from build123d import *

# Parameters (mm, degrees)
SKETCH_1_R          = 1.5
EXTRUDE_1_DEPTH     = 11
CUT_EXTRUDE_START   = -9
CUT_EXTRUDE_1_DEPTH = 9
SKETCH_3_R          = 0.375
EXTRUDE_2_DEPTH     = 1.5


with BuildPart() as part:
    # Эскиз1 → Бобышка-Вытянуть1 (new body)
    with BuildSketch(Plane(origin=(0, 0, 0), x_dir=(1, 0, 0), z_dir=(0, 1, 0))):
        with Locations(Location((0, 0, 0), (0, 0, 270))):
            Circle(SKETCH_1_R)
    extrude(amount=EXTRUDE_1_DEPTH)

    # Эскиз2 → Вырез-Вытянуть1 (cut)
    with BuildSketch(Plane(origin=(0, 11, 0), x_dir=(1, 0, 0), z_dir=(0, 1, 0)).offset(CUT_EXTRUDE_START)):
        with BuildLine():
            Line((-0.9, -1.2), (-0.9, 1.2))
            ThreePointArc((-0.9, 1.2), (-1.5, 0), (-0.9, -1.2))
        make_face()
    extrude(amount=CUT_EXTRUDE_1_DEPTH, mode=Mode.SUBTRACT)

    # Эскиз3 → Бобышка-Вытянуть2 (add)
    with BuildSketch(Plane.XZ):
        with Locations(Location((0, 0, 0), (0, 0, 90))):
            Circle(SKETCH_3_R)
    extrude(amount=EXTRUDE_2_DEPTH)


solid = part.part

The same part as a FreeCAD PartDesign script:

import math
import FreeCAD as App
import Part
import Sketcher

V = App.Vector

doc = App.newDocument("Part")
body = doc.addObject("PartDesign::Body", "Body")

# Sketch on XZ plane
sketch1 = doc.addObject("Sketcher::SketchObject", "Sketch")
body.addObject(sketch1)
sketch1.AttachmentSupport = (doc.XZ_Plane, [""])
sketch1.MapMode = "FlatFace"
sketch1.addGeometry(Part.Circle(V(0, 0, 0), V(0, 0, 1), 1.5), False)
sketch1.addConstraint(Sketcher.Constraint("Coincident", 0, 3, -1, 1))
sketch1.addConstraint(Sketcher.Constraint("Diameter", 0, 3.0))
pad1 = doc.addObject("PartDesign::Pad", "Pad")
body.addObject(pad1)
pad1.Profile = sketch1
pad1.Length = 11
pad1.Reversed = True

# Sketch on XZ plane
sketch2 = doc.addObject("Sketcher::SketchObject", "Sketch001")
body.addObject(sketch2)
sketch2.AttachmentSupport = (doc.XZ_Plane, [""])
sketch2.MapMode = "FlatFace"
sketch2.AttachmentOffset = App.Placement(V(0, 0, -2), App.Rotation())
sketch2.addGeometry(Part.LineSegment(V(-0.9, 1.2, 0), V(-0.9, -1.2, 0)), False)
sketch2.addGeometry(Part.ArcOfCircle(Part.Circle(V(0, 0, 0), V(0, 0, 1), 1.5), math.radians(127), math.radians(233)), False)
sketch2.addConstraint(Sketcher.Constraint("Coincident", 0, 1, 1, 1))
sketch2.addConstraint(Sketcher.Constraint("Coincident", 1, 2, 0, 2))
sketch2.addConstraint(Sketcher.Constraint("Vertical", 0))
sketch2.addConstraint(Sketcher.Constraint("Coincident", 1, 3, -1, 1))
sketch2.addConstraint(Sketcher.Constraint("Radius", 1, 1.5))
sketch2.addConstraint(Sketcher.Constraint("DistanceY", 0, 2, 0, 1, 2.4))
pocket1 = doc.addObject("PartDesign::Pocket", "Pocket")
body.addObject(pocket1)
pocket1.Profile = sketch2
pocket1.Length = 9

# Sketch on XZ plane
sketch3 = doc.addObject("Sketcher::SketchObject", "Sketch002")
body.addObject(sketch3)
sketch3.AttachmentSupport = (doc.XZ_Plane, [""])
sketch3.MapMode = "FlatFace"
sketch3.addGeometry(Part.Circle(V(0, 0, 0), V(0, 0, 1), 0.38), False)
sketch3.addConstraint(Sketcher.Constraint("Coincident", 0, 3, -1, 1))
sketch3.addConstraint(Sketcher.Constraint("Diameter", 0, 0.75))
pad2 = doc.addObject("PartDesign::Pad", "Pad001")
body.addObject(pad2)
pad2.Profile = sketch3
pad2.Length = 1.5

doc.recompute()
